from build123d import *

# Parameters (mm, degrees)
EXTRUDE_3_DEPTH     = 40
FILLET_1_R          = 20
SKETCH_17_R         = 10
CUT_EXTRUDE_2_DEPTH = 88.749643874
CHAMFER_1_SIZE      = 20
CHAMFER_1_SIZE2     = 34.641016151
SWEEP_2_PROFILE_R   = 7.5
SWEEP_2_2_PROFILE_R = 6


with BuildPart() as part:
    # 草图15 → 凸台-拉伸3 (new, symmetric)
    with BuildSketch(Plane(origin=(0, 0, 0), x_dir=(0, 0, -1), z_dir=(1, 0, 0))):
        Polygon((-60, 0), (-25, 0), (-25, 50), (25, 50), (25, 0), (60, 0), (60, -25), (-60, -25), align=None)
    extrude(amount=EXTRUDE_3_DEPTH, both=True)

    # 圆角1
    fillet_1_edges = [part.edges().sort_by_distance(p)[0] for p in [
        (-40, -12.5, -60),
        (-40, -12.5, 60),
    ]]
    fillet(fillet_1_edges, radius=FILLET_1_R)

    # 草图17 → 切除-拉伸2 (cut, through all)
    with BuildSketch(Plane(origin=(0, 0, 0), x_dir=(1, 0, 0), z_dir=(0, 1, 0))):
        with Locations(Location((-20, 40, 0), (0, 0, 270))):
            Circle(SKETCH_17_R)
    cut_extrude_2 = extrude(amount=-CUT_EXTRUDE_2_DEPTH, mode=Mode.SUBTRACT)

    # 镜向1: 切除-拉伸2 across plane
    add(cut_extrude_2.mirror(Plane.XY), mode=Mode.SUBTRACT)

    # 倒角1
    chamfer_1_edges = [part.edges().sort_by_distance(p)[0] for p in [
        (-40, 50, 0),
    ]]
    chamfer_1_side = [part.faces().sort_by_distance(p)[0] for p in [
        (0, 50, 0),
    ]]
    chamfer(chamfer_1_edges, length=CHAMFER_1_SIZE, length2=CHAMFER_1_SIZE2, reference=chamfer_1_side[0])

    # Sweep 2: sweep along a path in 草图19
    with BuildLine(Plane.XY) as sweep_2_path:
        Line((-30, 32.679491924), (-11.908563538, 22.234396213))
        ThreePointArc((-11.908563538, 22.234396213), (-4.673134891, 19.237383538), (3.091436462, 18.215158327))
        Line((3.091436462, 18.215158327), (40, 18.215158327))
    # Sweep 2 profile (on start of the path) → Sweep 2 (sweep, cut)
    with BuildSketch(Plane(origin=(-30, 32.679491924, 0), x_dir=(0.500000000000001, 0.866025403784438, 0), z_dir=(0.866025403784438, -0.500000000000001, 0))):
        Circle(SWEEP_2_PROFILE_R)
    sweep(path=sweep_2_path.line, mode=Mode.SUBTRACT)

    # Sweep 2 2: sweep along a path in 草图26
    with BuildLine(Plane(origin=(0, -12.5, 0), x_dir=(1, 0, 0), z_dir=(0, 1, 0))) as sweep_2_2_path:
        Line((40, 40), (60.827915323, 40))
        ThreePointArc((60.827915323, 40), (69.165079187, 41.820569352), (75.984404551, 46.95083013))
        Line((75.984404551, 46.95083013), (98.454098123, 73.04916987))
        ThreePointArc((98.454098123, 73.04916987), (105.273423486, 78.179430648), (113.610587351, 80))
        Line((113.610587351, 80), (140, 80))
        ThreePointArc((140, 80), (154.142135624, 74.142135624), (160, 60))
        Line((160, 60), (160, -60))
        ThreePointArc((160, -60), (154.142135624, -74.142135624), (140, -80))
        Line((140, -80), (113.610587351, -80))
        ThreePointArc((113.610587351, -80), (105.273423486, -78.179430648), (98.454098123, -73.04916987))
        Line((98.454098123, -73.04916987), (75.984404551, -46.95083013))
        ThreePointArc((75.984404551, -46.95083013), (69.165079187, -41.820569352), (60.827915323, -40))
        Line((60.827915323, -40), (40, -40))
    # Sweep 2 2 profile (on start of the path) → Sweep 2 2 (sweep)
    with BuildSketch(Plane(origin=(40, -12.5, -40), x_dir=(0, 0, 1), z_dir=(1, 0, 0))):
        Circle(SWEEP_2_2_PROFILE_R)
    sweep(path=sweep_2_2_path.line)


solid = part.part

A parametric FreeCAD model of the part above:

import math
import FreeCAD as App
import Part
import Sketcher
Q = App.Units.Quantity


def edges_at(feature, points):
    """Names of the edges that pass closest to the given points."""
    edges = feature.Shape.Edges
    near = lambda p: min(range(len(edges)), key=lambda i: edges[i].distToShape(Part.Vertex(*p))[0])
    return sorted({f"Edge{near(p) + 1}" for p in points})

doc = App.newDocument("Part")
body = doc.addObject("PartDesign::Body", "Body")

# Sketch on YZ plane
sketch1 = body.newObject("Sketcher::SketchObject", "Sketch")
sketch1.AttachmentSupport = (doc.getObject("YZ_Plane"), [""])
sketch1.MapMode = "FlatFace"
sketch1.addGeometry(Part.LineSegment(App.Vector(0, 25, 0), App.Vector(0, 60, 0)), False)
sketch1.addGeometry(Part.LineSegment(App.Vector(0, 60, 0), App.Vector(-25, 60, 0)), False)
sketch1.addGeometry(Part.LineSegment(App.Vector(-25, 60, 0), App.Vector(-25, -60, 0)), False)
sketch1.addGeometry(Part.LineSegment(App.Vector(-25, -60, 0), App.Vector(0, -60, 0)), False)
sketch1.addGeometry(Part.LineSegment(App.Vector(0, -60, 0), App.Vector(0, -25, 0)), False)
sketch1.addGeometry(Part.LineSegment(App.Vector(0, -25, 0), App.Vector(50, -25, 0)), False)
sketch1.addGeometry(Part.LineSegment(App.Vector(50, -25, 0), App.Vector(50, 25, 0)), False)
sketch1.addGeometry(Part.LineSegment(App.Vector(50, 25, 0), App.Vector(0, 25, 0)), False)
sketch1.addConstraint(Sketcher.Constraint("Coincident", 0, 2, 1, 1))
sketch1.addConstraint(Sketcher.Constraint("Coincident", 1, 2, 2, 1))
sketch1.addConstraint(Sketcher.Constraint("Coincident", 2, 2, 3, 1))
sketch1.addConstraint(Sketcher.Constraint("Coincident", 3, 2, 4, 1))
sketch1.addConstraint(Sketcher.Constraint("Coincident", 4, 2, 5, 1))
sketch1.addConstraint(Sketcher.Constraint("Coincident", 5, 2, 6, 1))
sketch1.addConstraint(Sketcher.Constraint("Coincident", 6, 2, 7, 1))
sketch1.addConstraint(Sketcher.Constraint("Coincident", 7, 2, 0, 1))
sketch1.addConstraint(Sketcher.Constraint("Vertical", 0))
sketch1.addConstraint(Sketcher.Constraint("Horizontal", 1))
sketch1.addConstraint(Sketcher.Constraint("Vertical", 2))
sketch1.addConstraint(Sketcher.Constraint("Horizontal", 3))
sketch1.addConstraint(Sketcher.Constraint("Vertical", 4))
sketch1.addConstraint(Sketcher.Constraint("Horizontal", 5))
sketch1.addConstraint(Sketcher.Constraint("Vertical", 6))
sketch1.addConstraint(Sketcher.Constraint("Horizontal", 7))
sketch1.addConstraint(Sketcher.Constraint("Symmetric", 0, 2, 3, 2, -1, 1))
sketch1.addConstraint(Sketcher.Constraint("Symmetric", 4, 2, 7, 2, -1))
sketch1.addConstraint(Sketcher.Constraint("Equal", 7, 6))
sketch1.addConstraint(Sketcher.Constraint("DistanceX", 1, 2, 1, 1, 25.0))
sketch1.addConstraint(Sketcher.Constraint("DistanceX", 5, 1, 5, 2, 50.0))
sketch1.addConstraint(Sketcher.Constraint("DistanceY", 0, 1, 0, 2, 35.0))
pad1 = body.newObject("PartDesign::Pad", "Pad")
pad1.Profile = sketch1
pad1.Length = 80
pad1.Midplane = True
doc.recompute()

fillet = body.newObject("PartDesign::Fillet", "Fillet")
fillet.Base = (pad1, edges_at(pad1, [(-40, -12.5, -60), (-40, -12.5, 60)]))
fillet.Radius = 20

# Sketch on XZ plane
sketch2 = body.newObject("Sketcher::SketchObject", "Sketch001")
sketch2.AttachmentSupport = (doc.getObject("XZ_Plane"), [""])
sketch2.MapMode = "FlatFace"
sketch2.addGeometry(Part.Circle(App.Vector(-20, -40, 0), App.Vector(0, 0, 1), 10), False)
sketch2.addConstraint(Sketcher.Constraint("Diameter", 0, 20.0))
sketch2.addConstraint(Sketcher.Constraint("DistanceX", 0, 3, -1, 1, 20.0))
sketch2.addConstraint(Sketcher.Constraint("DistanceY", 0, 3, -1, 1, 40.0))
pocket1 = body.newObject("PartDesign::Pocket", "Pocket")
pocket1.Profile = sketch2
pocket1.Type = "ThroughAll"
pocket1.Reversed = True
doc.recompute()

mirrored = body.newObject("PartDesign::Mirrored", "Mirrored")
mirrored.Originals = [pocket1]
mirrored.MirrorPlane = (doc.getObject("XY_Plane"), [""])
body.Tip = mirrored
doc.recompute()

chamfer = body.newObject("PartDesign::Chamfer", "Chamfer")
chamfer.Base = (mirrored, edges_at(mirrored, [(-40, 50, 0)]))
chamfer.ChamferType = "Two distances"
chamfer.Size = 20
chamfer.Size2 = 34.641016
chamfer.FlipDirection = True

# Sketch on an angled plane
sketch3 = body.newObject("Sketcher::SketchObject", "Sketch002")
sketch3.Placement = App.Placement(App.Vector(-30, 32.679492, 0), App.Rotation(App.Vector(0.5, 0.866025404, 0), App.Vector(0, 0, 1), App.Vector(0.866025404, -0.5, 0), "ZXY"))
sketch3.addGeometry(Part.Circle(App.Vector(0, 0, 0), App.Vector(0, 0, 1), 8), False)
sketch3.addConstraint(Sketcher.Constraint("Coincident", 0, 3, -1, 1))
sketch3.addConstraint(Sketcher.Constraint("Diameter", 0, 15.0))

# Sketch on XY plane
sketch4 = body.newObject("Sketcher::SketchObject", "Sketch003")
sketch4.AttachmentSupport = (doc.getObject("XY_Plane"), [""])
sketch4.MapMode = "FlatFace"
sketch4.addGeometry(Part.LineSegment(App.Vector(-30, 33, 0), App.Vector(-12, 22, 0)), False)
sketch4.addGeometry(Part.ArcOfCircle(Part.Circle(App.Vector(3, 48, 0), App.Vector(0, 0, 1), 30), math.radians(-120), math.radians(-90)), False)
sketch4.addGeometry(Part.LineSegment(App.Vector(3, 18, 0), App.Vector(40, 18, 0)), False)
sketch4.addConstraint(Sketcher.Constraint("Tangent", 0, 2, 1, 1))
sketch4.addConstraint(Sketcher.Constraint("Tangent", 1, 2, 2, 1))
sketch4.addConstraint(Sketcher.Constraint("Horizontal", 2))
sketch4.addConstraint(Sketcher.Constraint("Radius", 1, 30.0))
sketch4.addConstraint(Sketcher.Constraint("Angle", 0, Q("-30 deg")))
sketch4.addConstraint(Sketcher.Constraint("DistanceX", 0, 1, -1, 1, 30.0))
sketch4.addConstraint(Sketcher.Constraint("DistanceX", -1, 1, 2, 2, 40.0))
sketch4.addConstraint(Sketcher.Constraint("Distance", 0, 20.890191))
sketch4.addConstraint(Sketcher.Constraint("DistanceY", -1, 1, 1, 3, 48.215158))
doc.recompute()

subtractivepipe = body.newObject("PartDesign::SubtractivePipe", "SubtractivePipe")
subtractivepipe.Profile = sketch3
subtractivepipe.Spine = (sketch4, ["Edge1", "Edge2", "Edge3"])

# Sketch on YZ plane
sketch5 = body.newObject("Sketcher::SketchObject", "Sketch004")
sketch5.AttachmentSupport = (doc.getObject("YZ_Plane"), [""])
sketch5.MapMode = "FlatFace"
sketch5.AttachmentOffset = App.Placement(App.Vector(0, 0, 40), App.Rotation())
sketch5.addGeometry(Part.Circle(App.Vector(-12, -40, 0), App.Vector(0, 0, 1), 6), False)
sketch5.addConstraint(Sketcher.Constraint("Diameter", 0, 12.0))
sketch5.addConstraint(Sketcher.Constraint("DistanceY", 0, 3, -1, 1, 40.0))
sketch5.addConstraint(Sketcher.Constraint("DistanceX", 0, 3, -1, 1, 12.5))

# Sketch on XZ plane
sketch6 = body.newObject("Sketcher::SketchObject", "Sketch005")
sketch6.AttachmentSupport = (doc.getObject("XZ_Plane"), [""])
sketch6.MapMode = "FlatFace"
sketch6.AttachmentOffset = App.Placement(App.Vector(0, 0, 12.5), App.Rotation())
sketch6.addGeometry(Part.LineSegment(App.Vector(40, -40, 0), App.Vector(61, -40, 0)), False)
sketch6.addGeometry(Part.ArcOfCircle(Part.Circle(App.Vector(61, -60, 0), App.Vector(0, 0, 1), 20), math.radians(41), math.radians(90)), False)
sketch6.addGeometry(Part.LineSegment(App.Vector(76, -47, 0), App.Vector(98, -73, 0)), False)
sketch6.addGeometry(Part.ArcOfCircle(Part.Circle(App.Vector(114, -60, 0), App.Vector(0, 0, 1), 20), math.radians(-139), math.radians(-90)), False)
sketch6.addGeometry(Part.LineSegment(App.Vector(114, -80, 0), App.Vector(140, -80, 0)), False)
sketch6.addGeometry(Part.ArcOfCircle(Part.Circle(App.Vector(140, -60, 0), App.Vector(0, 0, 1), 20), math.radians(-90), math.radians(0)), False)
sketch6.addGeometry(Part.LineSegment(App.Vector(160, -60, 0), App.Vector(160, 60, 0)), False)
sketch6.addGeometry(Part.ArcOfCircle(Part.Circle(App.Vector(140, 60, 0), App.Vector(0, 0, 1), 20), math.radians(0), math.radians(90)), False)
sketch6.addGeometry(Part.LineSegment(App.Vector(140, 80, 0), App.Vector(114, 80, 0)), False)
sketch6.addGeometry(Part.ArcOfCircle(Part.Circle(App.Vector(114, 60, 0), App.Vector(0, 0, 1), 20), math.radians(90), math.radians(139)), False)
sketch6.addGeometry(Part.LineSegment(App.Vector(98, 73, 0), App.Vector(76, 47, 0)), False)
sketch6.addGeometry(Part.ArcOfCircle(Part.Circle(App.Vector(61, 60, 0), App.Vector(0, 0, 1), 20), math.radians(-90), math.radians(-41)), False)
sketch6.addGeometry(Part.LineSegment(App.Vector(61, 40, 0), App.Vector(40, 40, 0)), False)
sketch6.addConstraint(Sketcher.Constraint("Tangent", 0, 2, 1, 2))
sketch6.addConstraint(Sketcher.Constraint("Tangent", 1, 1, 2, 1))
sketch6.addConstraint(Sketcher.Constraint("Tangent", 2, 2, 3, 1))
sketch6.addConstraint(Sketcher.Constraint("Tangent", 3, 2, 4, 1))
sketch6.addConstraint(Sketcher.Constraint("Tangent", 4, 2, 5, 1))
sketch6.addConstraint(Sketcher.Constraint("Tangent", 5, 2, 6, 1))
sketch6.addConstraint(Sketcher.Constraint("Tangent", 6, 2, 7, 1))
sketch6.addConstraint(Sketcher.Constraint("Tangent", 7, 2, 8, 1))
sketch6.addConstraint(Sketcher.Constraint("Tangent", 8, 2, 9, 1))
sketch6.addConstraint(Sketcher.Constraint("Tangent", 9, 2, 10, 1))
sketch6.addConstraint(Sketcher.Constraint("Tangent", 10, 2, 11, 2))
sketch6.addConstraint(Sketcher.Constraint("Tangent", 11, 1, 12, 1))
sketch6.addConstraint(Sketcher.Constraint("Horizontal", 0))
sketch6.addConstraint(Sketcher.Constraint("Horizontal", 4))
sketch6.addConstraint(Sketcher.Constraint("Vertical", 6))
sketch6.addConstraint(Sketcher.Constraint("Horizontal", 8))
sketch6.addConstraint(Sketcher.Constraint("Horizontal", 12))
sketch6.addConstraint(Sketcher.Constraint("Equal", 1, 3))
sketch6.addConstraint(Sketcher.Constraint("Equal", 3, 5))
sketch6.addConstraint(Sketcher.Constraint("Equal", 5, 7))
sketch6.addConstraint(Sketcher.Constraint("Equal", 7, 9))
sketch6.addConstraint(Sketcher.Constraint("Equal", 9, 11))
sketch6.addConstraint(Sketcher.Constraint("Symmetric", 3, 3, 9, 3, -1))
sketch6.addConstraint(Sketcher.Constraint("Symmetric", 1, 3, 11, 3, -1))
sketch6.addConstraint(Sketcher.Constraint("Horizontal", 1, 3, 3, 3))
sketch6.addConstraint(Sketcher.Constraint("Vertical", 0, 1, 12, 2))
sketch6.addConstraint(Sketcher.Constraint("Radius", 1, 20.0))
sketch6.addConstraint(Sketcher.Constraint("DistanceY", 6, 1, 6, 2, 120.0))
sketch6.addConstraint(Sketcher.Constraint("DistanceX", -1, 1, 5, 3, 140.0))
sketch6.addConstraint(Sketcher.Constraint("DistanceX", -1, 1, 0, 1, 40.0))
sketch6.addConstraint(Sketcher.Constraint("DistanceX", -1, 1, 2, 2, 98.454098))
sketch6.addConstraint(Sketcher.Constraint("DistanceX", 0, 1, 0, 2, 20.827915))
doc.recompute()

additivepipe = body.newObject("PartDesign::AdditivePipe", "AdditivePipe")
additivepipe.Profile = sketch5
additivepipe.Spine = (sketch6, ["Edge1", "Edge2", "Edge3", "Edge4", "Edge5", "Edge6", "Edge7", "Edge8", "Edge9", "Edge10", "Edge11", "Edge12", "Edge13"])

doc.recompute()
